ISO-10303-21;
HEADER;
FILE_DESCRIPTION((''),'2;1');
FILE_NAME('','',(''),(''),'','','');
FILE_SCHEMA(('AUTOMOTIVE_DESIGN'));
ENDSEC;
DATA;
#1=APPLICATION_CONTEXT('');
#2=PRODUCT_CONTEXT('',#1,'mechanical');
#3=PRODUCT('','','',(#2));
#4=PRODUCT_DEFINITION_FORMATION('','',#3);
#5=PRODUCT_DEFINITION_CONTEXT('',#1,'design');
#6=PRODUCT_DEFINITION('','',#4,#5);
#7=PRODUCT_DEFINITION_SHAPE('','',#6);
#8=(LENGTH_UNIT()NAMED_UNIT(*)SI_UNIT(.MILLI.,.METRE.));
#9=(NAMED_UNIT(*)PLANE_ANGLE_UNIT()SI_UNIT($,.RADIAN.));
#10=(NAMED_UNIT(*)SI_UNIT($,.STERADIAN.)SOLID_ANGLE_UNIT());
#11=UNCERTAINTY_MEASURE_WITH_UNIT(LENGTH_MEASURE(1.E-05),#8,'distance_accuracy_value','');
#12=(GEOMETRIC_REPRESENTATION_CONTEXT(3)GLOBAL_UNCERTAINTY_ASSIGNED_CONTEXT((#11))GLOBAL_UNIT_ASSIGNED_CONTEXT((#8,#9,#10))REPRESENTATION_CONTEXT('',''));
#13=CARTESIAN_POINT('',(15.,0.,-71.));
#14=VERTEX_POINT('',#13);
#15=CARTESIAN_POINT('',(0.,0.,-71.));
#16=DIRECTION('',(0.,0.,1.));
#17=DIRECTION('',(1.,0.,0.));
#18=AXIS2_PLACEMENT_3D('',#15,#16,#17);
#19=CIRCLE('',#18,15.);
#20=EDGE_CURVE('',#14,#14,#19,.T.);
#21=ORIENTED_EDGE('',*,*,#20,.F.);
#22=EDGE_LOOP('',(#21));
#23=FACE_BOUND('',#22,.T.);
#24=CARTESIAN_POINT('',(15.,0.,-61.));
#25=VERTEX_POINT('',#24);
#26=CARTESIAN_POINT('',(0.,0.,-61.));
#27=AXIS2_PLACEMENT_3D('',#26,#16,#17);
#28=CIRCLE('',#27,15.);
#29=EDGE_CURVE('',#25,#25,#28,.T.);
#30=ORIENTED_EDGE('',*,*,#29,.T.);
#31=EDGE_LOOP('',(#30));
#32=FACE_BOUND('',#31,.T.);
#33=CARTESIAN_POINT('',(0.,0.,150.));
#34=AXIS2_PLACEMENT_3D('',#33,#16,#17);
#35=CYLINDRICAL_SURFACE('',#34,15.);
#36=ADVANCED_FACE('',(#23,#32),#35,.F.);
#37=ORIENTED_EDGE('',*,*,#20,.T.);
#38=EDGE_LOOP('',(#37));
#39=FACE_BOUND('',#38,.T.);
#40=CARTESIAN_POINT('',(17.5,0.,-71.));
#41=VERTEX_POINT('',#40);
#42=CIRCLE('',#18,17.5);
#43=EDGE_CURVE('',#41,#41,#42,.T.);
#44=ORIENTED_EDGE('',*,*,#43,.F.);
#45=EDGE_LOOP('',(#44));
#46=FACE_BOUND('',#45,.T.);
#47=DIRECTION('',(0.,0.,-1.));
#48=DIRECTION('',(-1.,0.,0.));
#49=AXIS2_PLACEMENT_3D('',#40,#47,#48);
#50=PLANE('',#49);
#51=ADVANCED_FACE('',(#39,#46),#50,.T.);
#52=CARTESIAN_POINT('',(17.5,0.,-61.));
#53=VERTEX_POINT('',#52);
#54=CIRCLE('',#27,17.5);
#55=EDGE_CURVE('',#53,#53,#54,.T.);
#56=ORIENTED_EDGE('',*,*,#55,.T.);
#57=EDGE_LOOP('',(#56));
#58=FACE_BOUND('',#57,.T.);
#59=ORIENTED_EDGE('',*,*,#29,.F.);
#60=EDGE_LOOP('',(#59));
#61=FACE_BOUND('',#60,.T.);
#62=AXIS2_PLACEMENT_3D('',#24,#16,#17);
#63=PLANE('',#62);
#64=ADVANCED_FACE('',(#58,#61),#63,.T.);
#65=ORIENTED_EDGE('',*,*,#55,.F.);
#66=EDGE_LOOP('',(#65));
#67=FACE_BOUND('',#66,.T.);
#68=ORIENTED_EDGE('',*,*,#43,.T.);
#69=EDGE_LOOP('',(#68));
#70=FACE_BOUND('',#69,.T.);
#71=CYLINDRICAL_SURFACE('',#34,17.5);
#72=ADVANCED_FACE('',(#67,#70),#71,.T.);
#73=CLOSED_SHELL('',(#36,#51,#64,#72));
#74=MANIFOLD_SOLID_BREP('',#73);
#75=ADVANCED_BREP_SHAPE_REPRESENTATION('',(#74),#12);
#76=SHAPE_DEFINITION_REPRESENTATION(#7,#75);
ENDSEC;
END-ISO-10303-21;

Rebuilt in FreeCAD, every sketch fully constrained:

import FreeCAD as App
import Part
import Sketcher
from FreeCAD import Vector


def add_polygon(sketch, points):
    """Adds a closed chain of lines whose ends are joined by coincident constraints."""
    first, n = sketch.GeometryCount, len(points)
    for a, b in zip(points, points[1:] + points[:1]):
        sketch.addGeometry(Part.LineSegment(App.Vector(*a, 0), App.Vector(*b, 0)), False)
    for i in range(n):
        sketch.addConstraint(Sketcher.Constraint("Coincident", first + i, 2, first + (i + 1) % n, 1))

doc = App.newDocument("Part")
body = doc.addObject("PartDesign::Body", "Body")

sketch1 = body.newObject("Sketcher::SketchObject", "Sketch")
sketch1.AttachmentSupport = (doc.getObject("XZ_Plane"), [""])
sketch1.MapMode = "FlatFace"
add_polygon(sketch1, [(15, -71), (15, -61), (17.5, -61), (17.5, -71)])
sketch1.addConstraint(Sketcher.Constraint("Vertical", 0))
sketch1.addConstraint(Sketcher.Constraint("Horizontal", 1))
sketch1.addConstraint(Sketcher.Constraint("Vertical", 2))
sketch1.addConstraint(Sketcher.Constraint("Horizontal", 3))
sketch1.addConstraint(Sketcher.Constraint("DistanceY", 0, 1, 0, 2, 10.0))
sketch1.addConstraint(Sketcher.Constraint("DistanceX", 1, 1, 1, 2, 2.5))
sketch1.addConstraint(Sketcher.Constraint("DistanceX", -1, 1, 0, 2, 15.0))
sketch1.addConstraint(Sketcher.Constraint("DistanceY", 0, 2, -1, 1, 61.0))
revolution = body.newObject("PartDesign::Revolution", "Revolution")
revolution.Profile = sketch1
revolution.ReferenceAxis = (sketch1, ["V_Axis"])
revolution.Angle = 360

doc.recompute()
